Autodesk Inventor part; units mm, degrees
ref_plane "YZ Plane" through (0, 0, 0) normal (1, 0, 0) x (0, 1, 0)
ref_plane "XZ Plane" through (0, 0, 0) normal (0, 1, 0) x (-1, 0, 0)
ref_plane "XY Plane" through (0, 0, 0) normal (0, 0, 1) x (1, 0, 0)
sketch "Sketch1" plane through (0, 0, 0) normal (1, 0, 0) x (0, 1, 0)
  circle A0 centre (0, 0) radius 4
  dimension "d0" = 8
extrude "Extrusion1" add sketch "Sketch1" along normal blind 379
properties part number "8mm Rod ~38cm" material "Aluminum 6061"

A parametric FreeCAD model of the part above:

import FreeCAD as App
import Part
import Sketcher

V = App.Vector

doc = App.newDocument("Part")
body = doc.addObject("PartDesign::Body", "Body")

# Sketch on YZ plane
sketch1 = body.newObject("Sketcher::SketchObject", "Sketch")
sketch1.AttachmentSupport = (doc.getObject("YZ_Plane"), [""])
sketch1.MapMode = "FlatFace"
sketch1.addGeometry(Part.Circle(V(0, 0, 0), V(0, 0, 1), 4), False)
sketch1.addConstraint([
    Sketcher.Constraint("Coincident", 0, 3, -1, 1),
    Sketcher.Constraint("Diameter", 0, 8.0),
])
pad1 = body.newObject("PartDesign::Pad", "Pad")
pad1.Profile = sketch1
pad1.Length = 379

doc.recompute()
